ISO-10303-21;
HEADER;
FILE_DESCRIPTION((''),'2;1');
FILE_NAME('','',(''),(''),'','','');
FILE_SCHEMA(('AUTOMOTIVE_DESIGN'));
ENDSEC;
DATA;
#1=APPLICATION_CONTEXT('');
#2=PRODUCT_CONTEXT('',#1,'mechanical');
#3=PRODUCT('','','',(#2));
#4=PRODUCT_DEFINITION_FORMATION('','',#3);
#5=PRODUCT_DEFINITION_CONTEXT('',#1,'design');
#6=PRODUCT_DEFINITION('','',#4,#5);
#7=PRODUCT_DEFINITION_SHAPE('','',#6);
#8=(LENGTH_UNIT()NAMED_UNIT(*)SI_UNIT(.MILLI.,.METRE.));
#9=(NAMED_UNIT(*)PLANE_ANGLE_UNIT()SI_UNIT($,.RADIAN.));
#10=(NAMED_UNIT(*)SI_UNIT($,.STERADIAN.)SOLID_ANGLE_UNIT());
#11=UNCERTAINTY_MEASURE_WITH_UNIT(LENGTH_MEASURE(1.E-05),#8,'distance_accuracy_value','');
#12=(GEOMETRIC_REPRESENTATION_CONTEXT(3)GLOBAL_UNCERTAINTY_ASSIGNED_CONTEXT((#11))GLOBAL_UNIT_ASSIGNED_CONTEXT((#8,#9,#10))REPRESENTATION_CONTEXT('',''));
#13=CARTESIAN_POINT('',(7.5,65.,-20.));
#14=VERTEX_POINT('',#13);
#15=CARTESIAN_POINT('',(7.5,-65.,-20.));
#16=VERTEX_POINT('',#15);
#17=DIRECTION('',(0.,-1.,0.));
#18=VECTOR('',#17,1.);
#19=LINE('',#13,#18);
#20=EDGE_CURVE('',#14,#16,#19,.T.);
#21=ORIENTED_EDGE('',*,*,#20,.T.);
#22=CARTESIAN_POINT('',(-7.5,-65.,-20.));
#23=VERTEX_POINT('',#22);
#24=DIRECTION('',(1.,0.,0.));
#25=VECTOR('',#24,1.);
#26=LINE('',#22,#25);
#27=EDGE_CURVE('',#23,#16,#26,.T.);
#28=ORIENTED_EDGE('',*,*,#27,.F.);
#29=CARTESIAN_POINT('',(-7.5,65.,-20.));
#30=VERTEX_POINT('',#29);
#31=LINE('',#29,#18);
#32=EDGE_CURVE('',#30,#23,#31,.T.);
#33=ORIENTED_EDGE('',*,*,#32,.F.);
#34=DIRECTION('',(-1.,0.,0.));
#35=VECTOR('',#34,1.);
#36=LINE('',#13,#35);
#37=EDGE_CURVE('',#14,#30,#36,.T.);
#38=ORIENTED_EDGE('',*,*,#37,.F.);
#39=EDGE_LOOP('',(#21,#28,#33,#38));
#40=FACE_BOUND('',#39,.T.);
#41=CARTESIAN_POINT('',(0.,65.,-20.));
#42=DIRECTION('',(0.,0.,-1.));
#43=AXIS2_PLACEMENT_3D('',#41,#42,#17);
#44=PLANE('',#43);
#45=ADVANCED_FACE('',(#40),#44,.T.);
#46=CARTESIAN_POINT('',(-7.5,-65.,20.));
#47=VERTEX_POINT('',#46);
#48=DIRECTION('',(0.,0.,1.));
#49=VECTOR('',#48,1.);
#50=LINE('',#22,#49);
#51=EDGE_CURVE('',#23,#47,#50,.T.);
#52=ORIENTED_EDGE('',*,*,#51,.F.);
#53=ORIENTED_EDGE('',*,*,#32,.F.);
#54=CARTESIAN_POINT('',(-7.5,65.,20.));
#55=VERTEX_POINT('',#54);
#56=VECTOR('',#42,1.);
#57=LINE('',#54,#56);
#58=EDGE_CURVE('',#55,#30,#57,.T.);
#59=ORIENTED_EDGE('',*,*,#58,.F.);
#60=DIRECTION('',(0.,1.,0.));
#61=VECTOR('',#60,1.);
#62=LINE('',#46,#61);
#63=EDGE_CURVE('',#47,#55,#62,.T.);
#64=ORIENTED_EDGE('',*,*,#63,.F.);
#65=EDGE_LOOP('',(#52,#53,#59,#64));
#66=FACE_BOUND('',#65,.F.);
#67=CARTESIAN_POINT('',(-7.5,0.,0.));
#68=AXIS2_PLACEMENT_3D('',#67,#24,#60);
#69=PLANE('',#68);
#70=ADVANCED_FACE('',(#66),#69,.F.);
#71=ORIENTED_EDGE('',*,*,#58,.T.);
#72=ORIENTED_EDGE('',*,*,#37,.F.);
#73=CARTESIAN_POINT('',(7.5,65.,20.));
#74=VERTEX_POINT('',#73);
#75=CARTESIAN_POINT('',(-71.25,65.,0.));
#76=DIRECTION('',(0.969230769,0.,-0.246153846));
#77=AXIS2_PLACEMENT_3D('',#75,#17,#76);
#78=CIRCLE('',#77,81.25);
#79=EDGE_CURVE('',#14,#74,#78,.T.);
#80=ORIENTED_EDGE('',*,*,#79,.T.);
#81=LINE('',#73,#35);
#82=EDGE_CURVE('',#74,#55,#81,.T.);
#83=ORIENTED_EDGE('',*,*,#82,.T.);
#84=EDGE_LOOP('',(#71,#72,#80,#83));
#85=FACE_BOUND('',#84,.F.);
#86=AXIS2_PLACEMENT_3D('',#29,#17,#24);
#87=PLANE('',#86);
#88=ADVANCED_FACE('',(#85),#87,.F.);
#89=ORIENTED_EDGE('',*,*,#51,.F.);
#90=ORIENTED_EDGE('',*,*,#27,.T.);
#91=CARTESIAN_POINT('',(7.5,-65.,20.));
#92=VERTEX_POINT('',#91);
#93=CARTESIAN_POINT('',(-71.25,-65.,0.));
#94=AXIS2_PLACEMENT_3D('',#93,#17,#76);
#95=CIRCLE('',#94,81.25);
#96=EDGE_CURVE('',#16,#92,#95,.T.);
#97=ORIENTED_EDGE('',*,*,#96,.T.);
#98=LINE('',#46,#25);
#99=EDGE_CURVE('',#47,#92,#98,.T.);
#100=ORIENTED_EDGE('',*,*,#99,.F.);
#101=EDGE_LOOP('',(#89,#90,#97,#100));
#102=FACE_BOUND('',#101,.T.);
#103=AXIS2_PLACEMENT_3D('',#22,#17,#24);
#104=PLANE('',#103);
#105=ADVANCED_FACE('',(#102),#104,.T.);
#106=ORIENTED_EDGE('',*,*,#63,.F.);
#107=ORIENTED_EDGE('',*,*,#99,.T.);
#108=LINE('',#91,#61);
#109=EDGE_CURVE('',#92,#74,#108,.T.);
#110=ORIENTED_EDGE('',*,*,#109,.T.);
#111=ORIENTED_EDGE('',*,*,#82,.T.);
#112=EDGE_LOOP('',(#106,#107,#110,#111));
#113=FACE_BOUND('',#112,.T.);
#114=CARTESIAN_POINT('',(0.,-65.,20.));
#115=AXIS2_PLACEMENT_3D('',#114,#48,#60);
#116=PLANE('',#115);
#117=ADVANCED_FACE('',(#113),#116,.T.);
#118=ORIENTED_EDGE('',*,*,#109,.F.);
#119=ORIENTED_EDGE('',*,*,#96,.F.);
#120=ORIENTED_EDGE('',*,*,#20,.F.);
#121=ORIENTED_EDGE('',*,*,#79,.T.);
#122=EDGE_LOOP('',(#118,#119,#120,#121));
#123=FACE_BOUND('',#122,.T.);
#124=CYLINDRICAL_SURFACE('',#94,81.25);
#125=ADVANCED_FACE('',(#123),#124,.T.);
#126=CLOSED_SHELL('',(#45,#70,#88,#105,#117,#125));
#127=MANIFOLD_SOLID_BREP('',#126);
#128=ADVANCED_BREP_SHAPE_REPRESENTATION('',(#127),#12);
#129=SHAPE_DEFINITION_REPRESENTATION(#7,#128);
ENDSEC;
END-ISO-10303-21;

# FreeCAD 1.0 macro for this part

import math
import FreeCAD as App
import Part
import Sketcher

doc = App.newDocument("Part")
body = doc.addObject("PartDesign::Body", "Body")

# Sketch on YZ plane
sketch1 = body.newObject("Sketcher::SketchObject", "Sketch")
sketch1.AttachmentSupport = (doc.getObject("YZ_Plane"), [""])
sketch1.MapMode = "FlatFace"
sketch1.addGeometry([
    Part.LineSegment(App.Vector(65, 20, 0), App.Vector(-65, 20, 0)),
    Part.LineSegment(App.Vector(-65, 20, 0), App.Vector(-65, -20, 0)),
    Part.LineSegment(App.Vector(-65, -20, 0), App.Vector(65, -20, 0)),
    Part.LineSegment(App.Vector(65, -20, 0), App.Vector(65, 20, 0)),
], False)
sketch1.addConstraint([
    Sketcher.Constraint("Coincident", 0, 2, 1, 1),
    Sketcher.Constraint("Coincident", 1, 2, 2, 1),
    Sketcher.Constraint("Coincident", 2, 2, 3, 1),
    Sketcher.Constraint("Coincident", 3, 2, 0, 1),
    Sketcher.Constraint("Horizontal", 0),
    Sketcher.Constraint("Vertical", 1),
    Sketcher.Constraint("Horizontal", 2),
    Sketcher.Constraint("Vertical", 3),
    Sketcher.Constraint("Symmetric", 0, 2, 2, 2, -1, 1),
    Sketcher.Constraint("DistanceX", 0, 2, 0, 1, 130.0),
    Sketcher.Constraint("DistanceY", 1, 2, 1, 1, 40.0),
])
pad1 = body.newObject("PartDesign::Pad", "Pad")
pad1.Profile = sketch1
pad1.Length = 15
pad1.Midplane = True

# Sketch on XZ plane
sketch2 = body.newObject("Sketcher::SketchObject", "Sketch001")
sketch2.AttachmentSupport = (doc.getObject("XZ_Plane"), [""])
sketch2.MapMode = "FlatFace"
sketch2.AttachmentOffset = App.Placement(App.Vector(0, 0, 65), App.Rotation())
sketch2.addGeometry([
    Part.LineSegment(App.Vector(8, 20, 0), App.Vector(8, -20, 0)),
    Part.ArcOfCircle(Part.Circle(App.Vector(-71, 0, 0), App.Vector(0, 0, 1), 81), math.radians(-14), math.radians(14)),
], False)
sketch2.addConstraint([
    Sketcher.Constraint("Coincident", 0, 1, 1, 2),
    Sketcher.Constraint("Coincident", 1, 1, 0, 2),
    Sketcher.Constraint("Vertical", 0),
    Sketcher.Constraint("PointOnObject", 1, 3, -1),
    Sketcher.Constraint("DistanceY", 0, 2, 0, 1, 40.0),
    Sketcher.Constraint("Radius", 1, 81.25),
    Sketcher.Constraint("DistanceX", -1, 1, 0, 1, 7.5),
])
pad2 = body.newObject("PartDesign::Pad", "Pad001")
pad2.Profile = sketch2
pad2.Length = 130
pad2.Reversed = True

doc.recompute()
